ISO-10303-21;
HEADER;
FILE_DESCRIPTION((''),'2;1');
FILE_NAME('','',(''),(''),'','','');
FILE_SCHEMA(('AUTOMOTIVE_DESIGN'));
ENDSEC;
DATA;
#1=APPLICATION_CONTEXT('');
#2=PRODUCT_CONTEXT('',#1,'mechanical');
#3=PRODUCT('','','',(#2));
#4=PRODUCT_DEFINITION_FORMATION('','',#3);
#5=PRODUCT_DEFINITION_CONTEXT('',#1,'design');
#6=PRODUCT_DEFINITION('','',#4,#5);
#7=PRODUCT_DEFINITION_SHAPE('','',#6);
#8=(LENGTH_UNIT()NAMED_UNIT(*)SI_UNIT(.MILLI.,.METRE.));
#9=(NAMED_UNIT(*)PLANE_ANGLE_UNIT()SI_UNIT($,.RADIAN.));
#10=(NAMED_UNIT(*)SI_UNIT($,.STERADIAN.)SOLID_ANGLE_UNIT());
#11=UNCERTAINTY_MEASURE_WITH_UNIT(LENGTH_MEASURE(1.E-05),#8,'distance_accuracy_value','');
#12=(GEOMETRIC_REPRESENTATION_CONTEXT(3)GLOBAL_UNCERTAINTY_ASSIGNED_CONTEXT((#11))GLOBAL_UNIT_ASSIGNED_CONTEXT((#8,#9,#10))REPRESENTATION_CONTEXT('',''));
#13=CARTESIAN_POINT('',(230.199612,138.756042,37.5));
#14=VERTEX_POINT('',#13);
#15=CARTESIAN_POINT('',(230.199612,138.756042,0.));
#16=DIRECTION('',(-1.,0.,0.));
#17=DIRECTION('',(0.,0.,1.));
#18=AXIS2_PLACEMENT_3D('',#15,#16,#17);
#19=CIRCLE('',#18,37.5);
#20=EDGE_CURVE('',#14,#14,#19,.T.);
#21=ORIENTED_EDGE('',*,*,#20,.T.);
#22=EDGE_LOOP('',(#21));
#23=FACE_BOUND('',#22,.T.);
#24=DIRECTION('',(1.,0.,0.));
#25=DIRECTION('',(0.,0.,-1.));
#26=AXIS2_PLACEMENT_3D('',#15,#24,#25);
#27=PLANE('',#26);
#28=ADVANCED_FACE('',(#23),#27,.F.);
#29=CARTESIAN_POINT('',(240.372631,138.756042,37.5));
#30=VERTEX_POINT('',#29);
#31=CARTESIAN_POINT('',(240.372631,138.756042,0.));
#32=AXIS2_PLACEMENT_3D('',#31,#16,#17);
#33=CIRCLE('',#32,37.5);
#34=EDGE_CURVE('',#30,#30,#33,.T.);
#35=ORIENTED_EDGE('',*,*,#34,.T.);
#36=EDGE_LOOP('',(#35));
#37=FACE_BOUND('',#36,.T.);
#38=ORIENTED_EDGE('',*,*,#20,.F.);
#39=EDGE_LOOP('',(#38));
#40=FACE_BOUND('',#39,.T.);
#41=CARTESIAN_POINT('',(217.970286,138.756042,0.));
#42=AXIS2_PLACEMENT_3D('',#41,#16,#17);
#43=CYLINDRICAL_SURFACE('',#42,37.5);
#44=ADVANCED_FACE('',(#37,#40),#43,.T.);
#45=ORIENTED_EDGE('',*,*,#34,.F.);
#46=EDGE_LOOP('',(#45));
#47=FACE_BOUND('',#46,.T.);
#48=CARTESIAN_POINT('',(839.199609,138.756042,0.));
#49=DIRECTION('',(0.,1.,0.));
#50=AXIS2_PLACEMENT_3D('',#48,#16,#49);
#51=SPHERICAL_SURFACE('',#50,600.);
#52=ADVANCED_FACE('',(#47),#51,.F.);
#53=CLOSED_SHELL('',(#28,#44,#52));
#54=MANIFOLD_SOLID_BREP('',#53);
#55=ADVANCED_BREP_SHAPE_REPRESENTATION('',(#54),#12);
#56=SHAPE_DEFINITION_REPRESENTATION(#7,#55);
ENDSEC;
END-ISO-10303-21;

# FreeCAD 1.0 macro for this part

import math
import FreeCAD as App
import Part
import Sketcher
from FreeCAD import Vector
Q = App.Units.Quantity

doc = App.newDocument("Part")
body = doc.addObject("PartDesign::Body", "Body")

# Sketch on XY plane
sketch1 = body.newObject("Sketcher::SketchObject", "Sketch")
sketch1.AttachmentSupport = (doc.getObject("XY_Plane"), [""])
sketch1.MapMode = "FlatFace"
sketch1.addGeometry(Part.LineSegment(Vector(230.199612, 176.256042, 0), Vector(230.199612, 138.756042, 0)), False)
sketch1.addGeometry(Part.LineSegment(Vector(230.199612, 138.756042, 0), Vector(239.199609, 138.756042, 0)), False)
sketch1.addGeometry(Part.ArcOfCircle(Part.Circle(Vector(839.19961, 138.756042, 0), Vector(0, 0, 1), 600.000001), math.radians(176.416678), math.radians(180)), False)
sketch1.addGeometry(Part.LineSegment(Vector(240.372631, 176.256042, 0), Vector(230.199612, 176.256042, 0)), False)
sketch1.addGeometry(Part.LineSegment(Vector(230.199612, 138.756042, 0), Vector(839.19961, 138.756042, 0)), True)  # axis
sketch1.addConstraint(Sketcher.Constraint("Coincident", 0, 2, 1, 1))
sketch1.addConstraint(Sketcher.Constraint("Coincident", 1, 2, 2, 2))
sketch1.addConstraint(Sketcher.Constraint("Coincident", 2, 1, 3, 1))
sketch1.addConstraint(Sketcher.Constraint("Coincident", 3, 2, 0, 1))
sketch1.addConstraint(Sketcher.Constraint("Vertical", 0))
sketch1.addConstraint(Sketcher.Constraint("Horizontal", 1))
sketch1.addConstraint(Sketcher.Constraint("Horizontal", 3))
sketch1.addConstraint(Sketcher.Constraint("Horizontal", 4))
sketch1.addConstraint(Sketcher.Constraint("Coincident", 4, 1, 0, 2))
sketch1.addConstraint(Sketcher.Constraint("Coincident", 4, 2, 2, 3))
sketch1.addConstraint(Sketcher.Constraint("Radius", 2, Q("600.000001 mm")))
sketch1.addConstraint(Sketcher.Constraint("DistanceY", 0, 2, 0, 1, Q("37.5 mm")))
sketch1.addConstraint(Sketcher.Constraint("DistanceX", 3, 2, 3, 1, Q("10.173019 mm")))
sketch1.addConstraint(Sketcher.Constraint("DistanceX", -1, 1, 2, 3, Q("839.19961 mm")))
sketch1.addConstraint(Sketcher.Constraint("DistanceY", -1, 1, 2, 3, Q("138.756042 mm")))
revolution = body.newObject("PartDesign::Revolution", "Revolution")
revolution.Profile = sketch1
revolution.ReferenceAxis = (sketch1, ["Axis0"])
revolution.Angle = 360

doc.recompute()
